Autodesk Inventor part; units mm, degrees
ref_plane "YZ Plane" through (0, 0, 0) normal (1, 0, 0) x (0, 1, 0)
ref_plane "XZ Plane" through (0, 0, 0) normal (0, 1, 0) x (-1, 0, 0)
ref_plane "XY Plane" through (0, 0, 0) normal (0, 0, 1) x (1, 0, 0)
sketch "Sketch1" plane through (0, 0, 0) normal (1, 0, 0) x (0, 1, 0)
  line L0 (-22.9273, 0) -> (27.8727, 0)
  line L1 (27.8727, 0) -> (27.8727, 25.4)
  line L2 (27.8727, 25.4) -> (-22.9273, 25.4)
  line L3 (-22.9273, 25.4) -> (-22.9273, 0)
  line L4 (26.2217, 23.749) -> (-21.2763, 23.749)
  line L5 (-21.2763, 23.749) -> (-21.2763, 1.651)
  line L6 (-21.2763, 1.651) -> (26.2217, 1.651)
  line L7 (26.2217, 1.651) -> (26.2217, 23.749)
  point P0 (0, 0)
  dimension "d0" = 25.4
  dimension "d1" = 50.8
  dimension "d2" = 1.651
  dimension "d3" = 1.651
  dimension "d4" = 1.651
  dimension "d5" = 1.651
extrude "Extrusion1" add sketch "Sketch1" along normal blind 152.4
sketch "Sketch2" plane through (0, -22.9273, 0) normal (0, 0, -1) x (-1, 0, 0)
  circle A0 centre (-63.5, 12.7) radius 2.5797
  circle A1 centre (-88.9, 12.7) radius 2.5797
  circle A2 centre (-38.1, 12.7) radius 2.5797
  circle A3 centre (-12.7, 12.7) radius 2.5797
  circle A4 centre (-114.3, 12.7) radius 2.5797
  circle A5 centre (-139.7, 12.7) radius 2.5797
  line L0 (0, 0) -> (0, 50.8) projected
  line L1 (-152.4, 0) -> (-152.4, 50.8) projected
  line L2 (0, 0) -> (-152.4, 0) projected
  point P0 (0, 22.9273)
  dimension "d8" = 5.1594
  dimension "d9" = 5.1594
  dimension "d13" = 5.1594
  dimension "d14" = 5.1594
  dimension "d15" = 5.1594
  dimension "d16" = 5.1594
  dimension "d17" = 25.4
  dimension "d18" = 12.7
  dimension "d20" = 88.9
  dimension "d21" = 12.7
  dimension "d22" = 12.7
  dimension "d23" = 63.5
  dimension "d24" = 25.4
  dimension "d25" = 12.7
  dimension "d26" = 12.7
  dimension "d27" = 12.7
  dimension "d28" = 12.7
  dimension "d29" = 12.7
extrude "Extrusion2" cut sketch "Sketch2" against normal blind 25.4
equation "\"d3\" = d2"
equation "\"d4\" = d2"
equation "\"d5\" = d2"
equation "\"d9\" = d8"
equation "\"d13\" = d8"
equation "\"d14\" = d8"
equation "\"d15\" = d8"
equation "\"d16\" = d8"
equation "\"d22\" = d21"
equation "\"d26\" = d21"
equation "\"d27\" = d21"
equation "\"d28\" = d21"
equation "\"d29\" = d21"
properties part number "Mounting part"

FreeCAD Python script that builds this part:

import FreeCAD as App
import Part
import Sketcher
Q = App.Units.Quantity


def add_polygon(sketch, points):
    """Adds a closed chain of lines whose ends are joined by coincident constraints."""
    first, n = sketch.GeometryCount, len(points)
    for a, b in zip(points, points[1:] + points[:1]):
        sketch.addGeometry(Part.LineSegment(App.Vector(*a, 0), App.Vector(*b, 0)), False)
    for i in range(n):
        sketch.addConstraint(Sketcher.Constraint("Coincident", first + i, 2, first + (i + 1) % n, 1))

doc = App.newDocument("Part")
params = doc.addObject("Spreadsheet::Sheet", "Params")
for row, (alias, value) in enumerate([
    ("sketch1_width", "2 in"),
    ("sketch1_height", "1 in"),
    ("pad1_length", "6 in"),
    ("sketch2_diameter", "0.203126 in"),
    ("pocket1_length", "1 in"),
], start=1):
    params.set(f"A{row}", alias)
    params.set(f"B{row}", "=" + value)
    params.setAlias(f"B{row}", alias)

body = doc.addObject("PartDesign::Body", "Body")

sketch1 = doc.addObject("Sketcher::SketchObject", "Sketch")
body.addObject(sketch1)
sketch1.AttachmentSupport = (doc.YZ_Plane, [""])
sketch1.MapMode = "FlatFace"
add_polygon(sketch1, [(-23, 25), (-23, 0), (28, 0), (28, 25)])
add_polygon(sketch1, [(-21, 24), (26, 24), (26, 2), (-21, 2)])
sketch1.addConstraint([
    Sketcher.Constraint("Vertical", 0),
    Sketcher.Constraint("Horizontal", 1),
    Sketcher.Constraint("Vertical", 2),
    Sketcher.Constraint("Horizontal", 3),
    Sketcher.Constraint("Horizontal", 4),
    Sketcher.Constraint("Vertical", 5),
    Sketcher.Constraint("Horizontal", 6),
    Sketcher.Constraint("Vertical", 7),
    Sketcher.Constraint("PointOnObject", 0, 2, -1),
    Sketcher.Constraint("DistanceX", 1, 1, 1, 2, Q("2 in")),
    Sketcher.Constraint("DistanceY", 0, 2, 0, 1, Q("1 in")),
    Sketcher.Constraint("DistanceY", -1, 1, 5, 2, Q("0.065 in")),
    Sketcher.Constraint("DistanceX", 4, 2, 2, 2, Q("0.065 in")),
    Sketcher.Constraint("DistanceY", 4, 2, 2, 2, Q("0.065 in")),
    Sketcher.Constraint("DistanceX", 0, 2, 6, 2, Q("0.065 in")),
    Sketcher.Constraint("DistanceX", 0, 2, -1, 1, Q("22.9273 mm")),
])
sketch1.setExpression("Constraints[17]", "Params.sketch1_width")
sketch1.setExpression("Constraints[18]", "Params.sketch1_height")
pad1 = doc.addObject("PartDesign::Pad", "Pad")
body.addObject(pad1)
pad1.Profile = sketch1
pad1.setExpression("Length", "Params.pad1_length")

sketch2 = doc.addObject("Sketcher::SketchObject", "Sketch001")
body.addObject(sketch2)
sketch2.AttachmentSupport = (doc.XY_Plane, [""])
sketch2.MapMode = "FlatFace"
sketch2.addGeometry([
    Part.Circle(App.Vector(63.5, -10.2, 0), App.Vector(0, 0, 1), 2.6),
    Part.Circle(App.Vector(88.9, -10.2, 0), App.Vector(0, 0, 1), 2.6),
    Part.Circle(App.Vector(38.1, -10.2, 0), App.Vector(0, 0, 1), 2.6),
    Part.Circle(App.Vector(12.7, -10.2, 0), App.Vector(0, 0, 1), 2.6),
    Part.Circle(App.Vector(114.3, -10.2, 0), App.Vector(0, 0, 1), 2.6),
    Part.Circle(App.Vector(139.7, -10.2, 0), App.Vector(0, 0, 1), 2.6),
], False)
sketch2.addConstraint([
    Sketcher.Constraint("Equal", 0, 1),
    Sketcher.Constraint("Equal", 1, 2),
    Sketcher.Constraint("Equal", 2, 3),
    Sketcher.Constraint("Equal", 3, 4),
    Sketcher.Constraint("Equal", 4, 5),
    Sketcher.Constraint("Horizontal", 0, 3, 1, 3),
    Sketcher.Constraint("Horizontal", 1, 3, 2, 3),
    Sketcher.Constraint("Horizontal", 2, 3, 3, 3),
    Sketcher.Constraint("Horizontal", 3, 3, 4, 3),
    Sketcher.Constraint("Horizontal", 4, 3, 5, 3),
    Sketcher.Constraint("Diameter", 0, Q("0.203126 in")),
    Sketcher.Constraint("DistanceX", 0, 3, 1, 3, Q("1 in")),
    Sketcher.Constraint("DistanceX", 2, 3, 0, 3, Q("1 in")),
    Sketcher.Constraint("DistanceX", 3, 3, 2, 3, Q("1 in")),
    Sketcher.Constraint("DistanceX", 1, 3, 4, 3, Q("1 in")),
    Sketcher.Constraint("DistanceX", 4, 3, 5, 3, Q("1 in")),
    Sketcher.Constraint("DistanceX", -1, 1, 0, 3, Q("2.5 in")),
    Sketcher.Constraint("DistanceY", 0, 3, -1, 1, Q("10.2273 mm")),
])
sketch2.setExpression("Constraints[10]", "Params.sketch2_diameter")
pocket1 = doc.addObject("PartDesign::Pocket", "Pocket")
body.addObject(pocket1)
pocket1.Profile = sketch2
pocket1.setExpression("Length", "Params.pocket1_length")
pocket1.Reversed = True

doc.recompute()
